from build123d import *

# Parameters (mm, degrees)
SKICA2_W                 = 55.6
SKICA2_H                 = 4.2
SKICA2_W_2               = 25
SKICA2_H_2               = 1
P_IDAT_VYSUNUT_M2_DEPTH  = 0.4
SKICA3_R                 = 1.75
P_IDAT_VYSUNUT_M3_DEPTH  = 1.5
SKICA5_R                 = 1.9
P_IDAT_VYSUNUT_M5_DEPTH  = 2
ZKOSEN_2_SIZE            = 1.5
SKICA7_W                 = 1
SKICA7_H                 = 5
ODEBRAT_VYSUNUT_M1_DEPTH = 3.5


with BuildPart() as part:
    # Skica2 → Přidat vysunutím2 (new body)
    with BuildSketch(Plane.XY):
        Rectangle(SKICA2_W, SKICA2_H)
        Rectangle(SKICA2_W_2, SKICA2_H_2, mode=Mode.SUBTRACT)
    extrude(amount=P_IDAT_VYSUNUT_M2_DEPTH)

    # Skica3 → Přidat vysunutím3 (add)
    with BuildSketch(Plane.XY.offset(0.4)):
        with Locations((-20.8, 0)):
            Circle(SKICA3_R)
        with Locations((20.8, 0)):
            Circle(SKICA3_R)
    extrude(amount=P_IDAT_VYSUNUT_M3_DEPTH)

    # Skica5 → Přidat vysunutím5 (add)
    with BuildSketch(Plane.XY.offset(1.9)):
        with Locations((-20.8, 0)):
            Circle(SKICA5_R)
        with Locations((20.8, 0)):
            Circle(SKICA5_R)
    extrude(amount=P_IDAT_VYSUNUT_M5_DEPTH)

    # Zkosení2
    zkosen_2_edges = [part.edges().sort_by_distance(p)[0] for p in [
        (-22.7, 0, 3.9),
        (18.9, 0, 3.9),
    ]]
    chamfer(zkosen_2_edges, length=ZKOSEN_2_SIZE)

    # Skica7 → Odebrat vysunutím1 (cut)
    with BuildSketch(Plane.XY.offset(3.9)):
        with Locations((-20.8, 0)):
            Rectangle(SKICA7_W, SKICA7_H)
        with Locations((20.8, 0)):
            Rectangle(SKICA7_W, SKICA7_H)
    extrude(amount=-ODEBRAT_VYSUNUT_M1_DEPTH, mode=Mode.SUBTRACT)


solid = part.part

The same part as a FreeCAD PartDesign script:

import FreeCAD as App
import Part
import Sketcher


def edges_at(feature, points):
    """Names of the edges that pass closest to the given points."""
    edges = feature.Shape.Edges
    near = lambda p: min(range(len(edges)), key=lambda i: edges[i].distToShape(Part.Vertex(*p))[0])
    return sorted({f"Edge{near(p) + 1}" for p in points})


def add_polygon(sketch, points):
    """Adds a closed chain of lines whose ends are joined by coincident constraints."""
    first, n = sketch.GeometryCount, len(points)
    for a, b in zip(points, points[1:] + points[:1]):
        sketch.addGeometry(Part.LineSegment(App.Vector(*a, 0), App.Vector(*b, 0)), False)
    for i in range(n):
        sketch.addConstraint(Sketcher.Constraint("Coincident", first + i, 2, first + (i + 1) % n, 1))

doc = App.newDocument("Part")
body = doc.addObject("PartDesign::Body", "Body")

sketch1 = body.newObject("Sketcher::SketchObject", "Sketch")
sketch1.AttachmentSupport = (doc.getObject("XY_Plane"), [""])
sketch1.MapMode = "FlatFace"
add_polygon(sketch1, [(-27.8, 2.1), (-27.8, -2.1), (27.8, -2.1), (27.8, 2.1)])
add_polygon(sketch1, [(12.5, -0.5), (-12.5, -0.5), (-12.5, 0.5), (12.5, 0.5)])
sketch1.addConstraint([
    Sketcher.Constraint("Vertical", 0),
    Sketcher.Constraint("Horizontal", 1),
    Sketcher.Constraint("Vertical", 2),
    Sketcher.Constraint("Horizontal", 3),
    Sketcher.Constraint("Horizontal", 4),
    Sketcher.Constraint("Vertical", 5),
    Sketcher.Constraint("Horizontal", 6),
    Sketcher.Constraint("Vertical", 7),
    Sketcher.Constraint("Symmetric", 0, 2, 2, 2, -1, 1),
    Sketcher.Constraint("Symmetric", 4, 2, 6, 2, -1, 1),
    Sketcher.Constraint("DistanceX", 4, 2, 4, 1, 25.0),
    Sketcher.Constraint("DistanceY", 5, 1, 5, 2, 1.0),
    Sketcher.Constraint("DistanceX", 1, 1, 1, 2, 55.6),
    Sketcher.Constraint("DistanceY", 0, 2, 0, 1, 4.2),
])
pad1 = body.newObject("PartDesign::Pad", "Pad")
pad1.Profile = sketch1
pad1.Length = 0.4

sketch2 = body.newObject("Sketcher::SketchObject", "Sketch001")
sketch2.AttachmentSupport = (doc.getObject("XY_Plane"), [""])
sketch2.MapMode = "FlatFace"
sketch2.AttachmentOffset = App.Placement(App.Vector(0, 0, 0.4), App.Rotation())
sketch2.addGeometry([
    Part.Circle(App.Vector(-20.8, 0, 0), App.Vector(0, 0, 1), 1.8),
    Part.Circle(App.Vector(20.8, 0, 0), App.Vector(0, 0, 1), 1.8),
], False)
sketch2.addConstraint([
    Sketcher.Constraint("Equal", 0, 1),
    Sketcher.Constraint("Symmetric", 0, 3, 1, 3, -1, 1),
    Sketcher.Constraint("PointOnObject", 0, 3, -1),
    Sketcher.Constraint("Diameter", 0, 3.5),
    Sketcher.Constraint("DistanceX", 0, 3, -1, 1, 20.8),
])
pad2 = body.newObject("PartDesign::Pad", "Pad001")
pad2.Profile = sketch2
pad2.Length = 1.5

sketch3 = body.newObject("Sketcher::SketchObject", "Sketch002")
sketch3.AttachmentSupport = (doc.getObject("XY_Plane"), [""])
sketch3.MapMode = "FlatFace"
sketch3.AttachmentOffset = App.Placement(App.Vector(0, 0, 1.9), App.Rotation())
sketch3.addGeometry([
    Part.Circle(App.Vector(-20.8, 0, 0), App.Vector(0, 0, 1), 1.9),
    Part.Circle(App.Vector(20.8, 0, 0), App.Vector(0, 0, 1), 1.9),
], False)
sketch3.addConstraint([
    Sketcher.Constraint("Equal", 0, 1),
    Sketcher.Constraint("Symmetric", 0, 3, 1, 3, -1, 1),
    Sketcher.Constraint("PointOnObject", 0, 3, -1),
    Sketcher.Constraint("Diameter", 0, 3.8),
    Sketcher.Constraint("DistanceX", 0, 3, -1, 1, 20.8),
])
pad3 = body.newObject("PartDesign::Pad", "Pad002")
pad3.Profile = sketch3
pad3.Length = 2
doc.recompute()

chamfer = body.newObject("PartDesign::Chamfer", "Chamfer")
chamfer.Base = (pad3, edges_at(pad3, [(-22.7, 0, 3.9), (18.9, 0, 3.9)]))
chamfer.Size = 1.5

sketch4 = body.newObject("Sketcher::SketchObject", "Sketch003")
sketch4.AttachmentSupport = (doc.getObject("XY_Plane"), [""])
sketch4.MapMode = "FlatFace"
sketch4.AttachmentOffset = App.Placement(App.Vector(0, 0, 3.9), App.Rotation())
add_polygon(sketch4, [(-21.3, 2.5), (-21.3, -2.5), (-20.3, -2.5), (-20.3, 2.5)])
add_polygon(sketch4, [(20.3, 2.5), (20.3, -2.5), (21.3, -2.5), (21.3, 2.5)])
sketch4.addConstraint([
    Sketcher.Constraint("Vertical", 0),
    Sketcher.Constraint("Horizontal", 1),
    Sketcher.Constraint("Vertical", 2),
    Sketcher.Constraint("Horizontal", 3),
    Sketcher.Constraint("Vertical", 4),
    Sketcher.Constraint("Horizontal", 5),
    Sketcher.Constraint("Vertical", 6),
    Sketcher.Constraint("Horizontal", 7),
    Sketcher.Constraint("Symmetric", 2, 2, 4, 2, -1, 1),
    Sketcher.Constraint("Symmetric", 0, 2, 6, 2, -1, 1),
    Sketcher.Constraint("Horizontal", 1, 2, 4, 2),
    Sketcher.Constraint("DistanceX", 1, 1, 1, 2, 1.0),
    Sketcher.Constraint("DistanceY", 0, 2, 0, 1, 5.0),
    Sketcher.Constraint("DistanceX", 0, 2, -1, 1, 21.3),
])
pocket1 = body.newObject("PartDesign::Pocket", "Pocket")
pocket1.Profile = sketch4
pocket1.Length = 3.5

doc.recompute()
